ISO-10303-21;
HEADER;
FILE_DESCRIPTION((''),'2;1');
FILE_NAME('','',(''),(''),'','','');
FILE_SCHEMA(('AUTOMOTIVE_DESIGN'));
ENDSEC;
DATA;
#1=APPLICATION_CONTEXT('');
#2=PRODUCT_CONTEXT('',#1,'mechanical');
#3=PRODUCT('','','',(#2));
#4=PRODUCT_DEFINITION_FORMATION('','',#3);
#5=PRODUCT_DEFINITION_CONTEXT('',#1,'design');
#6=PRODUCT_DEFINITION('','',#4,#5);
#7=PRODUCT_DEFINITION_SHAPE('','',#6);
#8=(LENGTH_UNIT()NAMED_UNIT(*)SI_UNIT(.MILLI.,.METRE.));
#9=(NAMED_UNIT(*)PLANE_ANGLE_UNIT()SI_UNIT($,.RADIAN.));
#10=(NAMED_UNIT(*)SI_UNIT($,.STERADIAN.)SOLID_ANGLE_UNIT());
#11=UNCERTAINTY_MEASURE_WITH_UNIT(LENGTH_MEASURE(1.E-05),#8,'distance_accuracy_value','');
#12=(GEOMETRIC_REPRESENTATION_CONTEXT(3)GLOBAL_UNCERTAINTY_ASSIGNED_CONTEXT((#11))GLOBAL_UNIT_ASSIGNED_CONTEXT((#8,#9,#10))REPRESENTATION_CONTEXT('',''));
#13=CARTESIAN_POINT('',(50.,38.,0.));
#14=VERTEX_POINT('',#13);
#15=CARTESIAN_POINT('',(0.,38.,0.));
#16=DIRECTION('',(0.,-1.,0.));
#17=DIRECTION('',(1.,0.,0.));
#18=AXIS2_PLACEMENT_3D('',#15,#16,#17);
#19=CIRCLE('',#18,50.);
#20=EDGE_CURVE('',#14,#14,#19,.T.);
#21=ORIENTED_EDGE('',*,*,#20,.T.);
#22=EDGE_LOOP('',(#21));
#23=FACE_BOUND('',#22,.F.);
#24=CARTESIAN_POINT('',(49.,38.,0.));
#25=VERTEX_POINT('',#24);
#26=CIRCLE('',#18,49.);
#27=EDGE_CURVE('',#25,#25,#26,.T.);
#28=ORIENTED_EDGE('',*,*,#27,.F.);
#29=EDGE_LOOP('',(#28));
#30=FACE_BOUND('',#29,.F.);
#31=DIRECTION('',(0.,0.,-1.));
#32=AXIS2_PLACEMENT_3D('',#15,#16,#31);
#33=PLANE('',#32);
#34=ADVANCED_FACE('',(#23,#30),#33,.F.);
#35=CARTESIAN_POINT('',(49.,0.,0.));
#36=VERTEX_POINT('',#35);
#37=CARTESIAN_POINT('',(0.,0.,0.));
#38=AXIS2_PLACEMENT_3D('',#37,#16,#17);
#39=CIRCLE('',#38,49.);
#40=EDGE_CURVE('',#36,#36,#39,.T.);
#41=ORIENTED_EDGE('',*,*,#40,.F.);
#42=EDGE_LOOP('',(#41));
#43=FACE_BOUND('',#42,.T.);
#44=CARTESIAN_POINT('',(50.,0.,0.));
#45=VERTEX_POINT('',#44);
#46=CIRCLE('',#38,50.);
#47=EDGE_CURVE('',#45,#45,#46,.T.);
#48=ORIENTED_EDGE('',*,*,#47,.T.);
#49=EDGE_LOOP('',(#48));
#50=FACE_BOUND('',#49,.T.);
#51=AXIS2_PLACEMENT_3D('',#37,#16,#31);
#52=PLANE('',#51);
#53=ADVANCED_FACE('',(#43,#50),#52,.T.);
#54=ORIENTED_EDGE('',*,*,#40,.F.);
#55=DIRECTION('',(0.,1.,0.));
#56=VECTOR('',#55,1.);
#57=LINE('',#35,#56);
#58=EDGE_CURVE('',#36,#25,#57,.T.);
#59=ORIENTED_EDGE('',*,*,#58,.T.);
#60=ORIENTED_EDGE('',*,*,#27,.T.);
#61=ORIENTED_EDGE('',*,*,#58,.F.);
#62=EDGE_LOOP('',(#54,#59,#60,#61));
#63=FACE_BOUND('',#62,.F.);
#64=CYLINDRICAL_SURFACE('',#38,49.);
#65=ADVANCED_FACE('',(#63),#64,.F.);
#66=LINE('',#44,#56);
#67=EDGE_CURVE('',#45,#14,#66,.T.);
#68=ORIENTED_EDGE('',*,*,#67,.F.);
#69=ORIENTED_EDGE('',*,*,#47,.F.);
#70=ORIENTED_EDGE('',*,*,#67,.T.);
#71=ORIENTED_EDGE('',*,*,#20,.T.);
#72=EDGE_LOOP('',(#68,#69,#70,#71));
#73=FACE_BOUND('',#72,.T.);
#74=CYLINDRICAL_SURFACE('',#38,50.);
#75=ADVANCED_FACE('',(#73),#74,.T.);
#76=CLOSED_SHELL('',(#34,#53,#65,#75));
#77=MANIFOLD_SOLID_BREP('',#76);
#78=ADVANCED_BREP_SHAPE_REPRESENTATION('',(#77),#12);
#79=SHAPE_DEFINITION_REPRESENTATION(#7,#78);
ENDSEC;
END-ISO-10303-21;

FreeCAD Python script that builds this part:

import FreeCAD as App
import Part
import Sketcher

doc = App.newDocument("Part")
params = doc.addObject("Spreadsheet::Sheet", "Params")
for row, (alias, value) in enumerate([
    ("sketch1_diameter", "100 mm"),
    ("sketch1_diameter2", "98 mm"),
    ("pad1_length", "38 mm"),
], start=1):
    params.set(f"A{row}", alias)
    params.set(f"B{row}", "=" + value)
    params.setAlias(f"B{row}", alias)

body = doc.addObject("PartDesign::Body", "Body")

# Sketch on XZ plane
sketch1 = body.newObject("Sketcher::SketchObject", "Sketch")
sketch1.AttachmentSupport = (doc.getObject("XZ_Plane"), [""])
sketch1.MapMode = "FlatFace"
sketch1.addGeometry([
    Part.Circle(App.Vector(0, 0, 0), App.Vector(0, 0, 1), 50),
    Part.Circle(App.Vector(0, 0, 0), App.Vector(0, 0, 1), 49),
], False)
sketch1.addConstraint([
    Sketcher.Constraint("Coincident", 0, 3, -1, 1),
    Sketcher.Constraint("Coincident", 1, 3, -1, 1),
    Sketcher.Constraint("Diameter", 0, 100.0),
    Sketcher.Constraint("Diameter", 1, 98.0),
])
sketch1.setExpression("Constraints[2]", "Params.sketch1_diameter")
sketch1.setExpression("Constraints[3]", "Params.sketch1_diameter2")
pad1 = body.newObject("PartDesign::Pad", "Pad")
pad1.Profile = sketch1
pad1.setExpression("Length", "Params.pad1_length")
pad1.Reversed = True

doc.recompute()
